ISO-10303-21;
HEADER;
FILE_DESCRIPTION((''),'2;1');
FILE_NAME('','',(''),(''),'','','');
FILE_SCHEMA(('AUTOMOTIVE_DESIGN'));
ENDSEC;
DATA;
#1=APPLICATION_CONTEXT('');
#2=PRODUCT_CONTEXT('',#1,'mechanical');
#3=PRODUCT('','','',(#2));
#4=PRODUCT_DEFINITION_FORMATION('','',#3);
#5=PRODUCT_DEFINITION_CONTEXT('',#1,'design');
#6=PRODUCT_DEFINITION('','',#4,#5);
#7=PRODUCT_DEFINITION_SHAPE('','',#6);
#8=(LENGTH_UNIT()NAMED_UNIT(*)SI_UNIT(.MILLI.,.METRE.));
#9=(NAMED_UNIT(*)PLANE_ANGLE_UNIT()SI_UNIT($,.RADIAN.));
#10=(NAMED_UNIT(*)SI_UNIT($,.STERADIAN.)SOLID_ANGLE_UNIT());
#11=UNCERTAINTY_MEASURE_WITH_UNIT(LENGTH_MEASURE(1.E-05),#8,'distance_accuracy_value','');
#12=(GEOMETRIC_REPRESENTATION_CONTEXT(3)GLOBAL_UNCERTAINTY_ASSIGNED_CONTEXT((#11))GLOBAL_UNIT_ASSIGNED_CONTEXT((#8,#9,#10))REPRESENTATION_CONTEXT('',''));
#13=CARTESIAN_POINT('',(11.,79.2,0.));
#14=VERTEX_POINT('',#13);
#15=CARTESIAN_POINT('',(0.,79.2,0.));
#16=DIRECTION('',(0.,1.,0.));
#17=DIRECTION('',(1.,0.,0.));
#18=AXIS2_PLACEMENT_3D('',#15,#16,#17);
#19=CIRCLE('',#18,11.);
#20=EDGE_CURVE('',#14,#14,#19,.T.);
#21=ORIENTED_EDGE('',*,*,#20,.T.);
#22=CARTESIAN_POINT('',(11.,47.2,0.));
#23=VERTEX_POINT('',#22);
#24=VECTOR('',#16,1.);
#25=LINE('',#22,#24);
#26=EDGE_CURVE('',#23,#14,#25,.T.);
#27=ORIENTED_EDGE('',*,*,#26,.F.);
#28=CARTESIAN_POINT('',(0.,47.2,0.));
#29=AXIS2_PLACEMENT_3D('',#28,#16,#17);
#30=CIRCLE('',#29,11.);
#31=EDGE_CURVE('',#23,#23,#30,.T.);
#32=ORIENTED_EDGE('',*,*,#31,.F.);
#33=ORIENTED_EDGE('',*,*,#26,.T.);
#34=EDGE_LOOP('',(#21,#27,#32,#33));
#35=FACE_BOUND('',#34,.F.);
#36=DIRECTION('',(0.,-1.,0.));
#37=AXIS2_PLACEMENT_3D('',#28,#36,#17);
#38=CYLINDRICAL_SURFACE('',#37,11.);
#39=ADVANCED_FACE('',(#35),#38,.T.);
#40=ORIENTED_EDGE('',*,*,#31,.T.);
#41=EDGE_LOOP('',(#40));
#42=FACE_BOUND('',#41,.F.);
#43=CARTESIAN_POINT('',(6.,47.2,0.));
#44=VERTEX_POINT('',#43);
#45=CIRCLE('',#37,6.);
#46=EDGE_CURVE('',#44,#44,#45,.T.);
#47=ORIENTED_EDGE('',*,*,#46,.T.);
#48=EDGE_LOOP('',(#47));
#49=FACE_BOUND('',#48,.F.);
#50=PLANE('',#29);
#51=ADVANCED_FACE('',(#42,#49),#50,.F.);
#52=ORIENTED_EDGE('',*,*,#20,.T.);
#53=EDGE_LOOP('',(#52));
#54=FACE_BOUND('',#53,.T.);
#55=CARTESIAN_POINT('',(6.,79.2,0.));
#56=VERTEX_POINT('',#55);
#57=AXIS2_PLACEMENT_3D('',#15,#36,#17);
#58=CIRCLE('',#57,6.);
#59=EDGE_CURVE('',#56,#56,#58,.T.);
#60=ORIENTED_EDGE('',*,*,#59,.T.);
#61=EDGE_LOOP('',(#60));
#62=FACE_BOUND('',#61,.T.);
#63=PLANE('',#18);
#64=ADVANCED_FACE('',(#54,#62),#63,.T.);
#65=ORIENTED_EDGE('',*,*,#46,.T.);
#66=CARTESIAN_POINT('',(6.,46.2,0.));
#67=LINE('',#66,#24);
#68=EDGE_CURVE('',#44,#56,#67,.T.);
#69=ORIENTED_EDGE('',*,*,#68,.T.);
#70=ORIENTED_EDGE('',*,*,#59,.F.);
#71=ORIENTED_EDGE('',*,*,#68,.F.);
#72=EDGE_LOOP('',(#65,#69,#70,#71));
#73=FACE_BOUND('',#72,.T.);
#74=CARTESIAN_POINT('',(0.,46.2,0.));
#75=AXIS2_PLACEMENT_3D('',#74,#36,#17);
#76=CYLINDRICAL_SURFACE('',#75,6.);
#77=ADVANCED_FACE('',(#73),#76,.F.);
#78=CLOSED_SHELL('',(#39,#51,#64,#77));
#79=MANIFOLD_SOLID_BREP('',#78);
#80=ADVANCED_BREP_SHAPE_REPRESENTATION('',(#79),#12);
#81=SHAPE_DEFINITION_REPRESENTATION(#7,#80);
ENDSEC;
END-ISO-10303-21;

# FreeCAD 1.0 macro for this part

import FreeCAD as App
import Part
import Sketcher

doc = App.newDocument("Part")
body = doc.addObject("PartDesign::Body", "Body")

# Sketch on XY plane
sketch1 = doc.addObject("Sketcher::SketchObject", "Sketch")
body.addObject(sketch1)
sketch1.AttachmentSupport = (doc.XY_Plane, [""])
sketch1.MapMode = "FlatFace"
sketch1.addGeometry(Part.Circle(App.Vector(0, 0, 0), App.Vector(0, 0, 1), 6), False)
sketch1.addConstraint(Sketcher.Constraint("Coincident", 0, 3, -1, 1))
sketch1.addConstraint(Sketcher.Constraint("Diameter", 0, 12.0))
pad1 = doc.addObject("PartDesign::Pad", "Pad")
body.addObject(pad1)
pad1.Profile = sketch1
pad1.Length = 34
body2 = doc.addObject("PartDesign::Body", "Body001")
doc.recompute()

body.Placement = App.Placement(App.Vector(0, 0, 0), App.Rotation(App.Vector(1, 0, 0), 270))
boolean = doc.addObject("PartDesign::Boolean", "Boolean")
body2.addObject(boolean)
boolean.Type = "Fuse"
boolean.addObjects([body])
body3 = doc.addObject("PartDesign::Body", "Body002")
doc.recompute()

body2.Placement = App.Placement(App.Vector(0, -82.2, 0), App.Rotation(App.Vector(0, 0, 1), 0))
boolean2 = doc.addObject("PartDesign::Boolean", "Boolean001")
body3.addObject(boolean2)
boolean2.Type = "Fuse"
boolean2.addObjects([body2])
body4 = doc.addObject("PartDesign::Body", "Body003")

# Sketch on XY plane
sketch2 = doc.addObject("Sketcher::SketchObject", "Sketch001")
body4.addObject(sketch2)
sketch2.AttachmentSupport = (doc.getObject("XY_Plane003"), [""])
sketch2.MapMode = "FlatFace"
sketch2.addGeometry(Part.Circle(App.Vector(0, 0, 0), App.Vector(0, 0, 1), 11), False)
sketch2.addConstraint(Sketcher.Constraint("Coincident", 0, 3, -1, 1))
sketch2.addConstraint(Sketcher.Constraint("Diameter", 0, 22.0))
pad2 = doc.addObject("PartDesign::Pad", "Pad001")
body4.addObject(pad2)
pad2.Profile = sketch2
pad2.Length = 32
body5 = doc.addObject("PartDesign::Body", "Body004")
doc.recompute()

body4.Placement = App.Placement(App.Vector(0, 0, 0), App.Rotation(App.Vector(1, 0, 0), 270))
boolean3 = doc.addObject("PartDesign::Boolean", "Boolean002")
body5.addObject(boolean3)
boolean3.Type = "Fuse"
boolean3.addObjects([body4])
body6 = doc.addObject("PartDesign::Body", "Body005")
doc.recompute()

body5.Placement = App.Placement(App.Vector(0, -81.2, 0), App.Rotation(App.Vector(0, 0, 1), 0))
boolean4 = doc.addObject("PartDesign::Boolean", "Boolean003")
body6.addObject(boolean4)
boolean4.Type = "Fuse"
boolean4.addObjects([body5])
doc.recompute()

boolean5 = doc.addObject("PartDesign::Boolean", "Boolean004")
body6.addObject(boolean5)
boolean5.Type = "Cut"
boolean5.addObjects([body3])
body7 = doc.addObject("PartDesign::Body", "Body006")
doc.recompute()

body6.Placement = App.Placement(App.Vector(0, 128.4, 0), App.Rotation(App.Vector(0, 0, 1), 0))
boolean6 = doc.addObject("PartDesign::Boolean", "Boolean005")
body7.addObject(boolean6)
boolean6.Type = "Fuse"
boolean6.addObjects([body6])

doc.recompute()
